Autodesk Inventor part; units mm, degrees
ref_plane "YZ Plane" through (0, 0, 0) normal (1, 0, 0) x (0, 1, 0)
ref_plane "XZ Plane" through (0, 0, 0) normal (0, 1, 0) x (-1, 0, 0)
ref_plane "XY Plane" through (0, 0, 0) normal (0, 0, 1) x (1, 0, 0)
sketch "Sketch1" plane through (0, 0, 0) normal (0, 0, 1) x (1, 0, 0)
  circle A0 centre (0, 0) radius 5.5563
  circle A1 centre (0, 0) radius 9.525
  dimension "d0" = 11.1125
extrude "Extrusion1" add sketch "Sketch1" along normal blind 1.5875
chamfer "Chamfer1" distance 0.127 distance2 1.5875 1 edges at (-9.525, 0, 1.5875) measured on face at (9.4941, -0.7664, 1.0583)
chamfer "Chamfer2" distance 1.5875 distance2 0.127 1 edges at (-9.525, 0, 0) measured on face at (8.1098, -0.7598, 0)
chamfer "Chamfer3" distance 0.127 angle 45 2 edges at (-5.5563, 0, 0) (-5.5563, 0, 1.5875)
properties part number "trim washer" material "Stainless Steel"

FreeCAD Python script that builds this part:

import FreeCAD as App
import Part
import Sketcher
Q = App.Units.Quantity


def edges_at(feature, points):
    """Names of the edges that pass closest to the given points."""
    edges = feature.Shape.Edges
    near = lambda p: min(range(len(edges)), key=lambda i: edges[i].distToShape(Part.Vertex(*p))[0])
    return sorted({f"Edge{near(p) + 1}" for p in points})

doc = App.newDocument("Part")
body = doc.addObject("PartDesign::Body", "Body")

# Sketch on XY plane
sketch1 = body.newObject("Sketcher::SketchObject", "Sketch")
sketch1.AttachmentSupport = (doc.getObject("XY_Plane"), [""])
sketch1.MapMode = "FlatFace"
sketch1.addGeometry(Part.Circle(App.Vector(0, 0, 0), App.Vector(0, 0, 1), 10), False)
sketch1.addGeometry(Part.Circle(App.Vector(0, 0, 0), App.Vector(0, 0, 1), 6), False)
sketch1.addConstraint(Sketcher.Constraint("Coincident", 0, 3, -1, 1))
sketch1.addConstraint(Sketcher.Constraint("Coincident", 1, 3, -1, 1))
sketch1.addConstraint(Sketcher.Constraint("Diameter", 1, Q("0.4375 in")))
sketch1.addConstraint(Sketcher.Constraint("Diameter", 0, Q("0.75 in")))
pad1 = body.newObject("PartDesign::Pad", "Pad")
pad1.Profile = sketch1
pad1.Length = Q("0.0625 in")
doc.recompute()

chamfer = body.newObject("PartDesign::Chamfer", "Chamfer")
chamfer.Base = (pad1, edges_at(pad1, [(-9.525, 0, 1.587)]))
chamfer.ChamferType = "Two distances"
chamfer.Size = Q("0.005 in")
chamfer.Size2 = Q("0.0625 in")
doc.recompute()

chamfer2 = body.newObject("PartDesign::Chamfer", "Chamfer001")
chamfer2.Base = (chamfer, edges_at(chamfer, [(-9.525, 0, 0)]))
chamfer2.ChamferType = "Two distances"
chamfer2.Size = Q("0.0625 in")
chamfer2.Size2 = Q("0.005 in")
chamfer2.FlipDirection = True
doc.recompute()

chamfer3 = body.newObject("PartDesign::Chamfer", "Chamfer002")
chamfer3.Base = (chamfer2, edges_at(chamfer2, [(-5.556, 0, 0), (-5.556, 0, 1.587)]))
chamfer3.Size = Q("0.005 in")

doc.recompute()
